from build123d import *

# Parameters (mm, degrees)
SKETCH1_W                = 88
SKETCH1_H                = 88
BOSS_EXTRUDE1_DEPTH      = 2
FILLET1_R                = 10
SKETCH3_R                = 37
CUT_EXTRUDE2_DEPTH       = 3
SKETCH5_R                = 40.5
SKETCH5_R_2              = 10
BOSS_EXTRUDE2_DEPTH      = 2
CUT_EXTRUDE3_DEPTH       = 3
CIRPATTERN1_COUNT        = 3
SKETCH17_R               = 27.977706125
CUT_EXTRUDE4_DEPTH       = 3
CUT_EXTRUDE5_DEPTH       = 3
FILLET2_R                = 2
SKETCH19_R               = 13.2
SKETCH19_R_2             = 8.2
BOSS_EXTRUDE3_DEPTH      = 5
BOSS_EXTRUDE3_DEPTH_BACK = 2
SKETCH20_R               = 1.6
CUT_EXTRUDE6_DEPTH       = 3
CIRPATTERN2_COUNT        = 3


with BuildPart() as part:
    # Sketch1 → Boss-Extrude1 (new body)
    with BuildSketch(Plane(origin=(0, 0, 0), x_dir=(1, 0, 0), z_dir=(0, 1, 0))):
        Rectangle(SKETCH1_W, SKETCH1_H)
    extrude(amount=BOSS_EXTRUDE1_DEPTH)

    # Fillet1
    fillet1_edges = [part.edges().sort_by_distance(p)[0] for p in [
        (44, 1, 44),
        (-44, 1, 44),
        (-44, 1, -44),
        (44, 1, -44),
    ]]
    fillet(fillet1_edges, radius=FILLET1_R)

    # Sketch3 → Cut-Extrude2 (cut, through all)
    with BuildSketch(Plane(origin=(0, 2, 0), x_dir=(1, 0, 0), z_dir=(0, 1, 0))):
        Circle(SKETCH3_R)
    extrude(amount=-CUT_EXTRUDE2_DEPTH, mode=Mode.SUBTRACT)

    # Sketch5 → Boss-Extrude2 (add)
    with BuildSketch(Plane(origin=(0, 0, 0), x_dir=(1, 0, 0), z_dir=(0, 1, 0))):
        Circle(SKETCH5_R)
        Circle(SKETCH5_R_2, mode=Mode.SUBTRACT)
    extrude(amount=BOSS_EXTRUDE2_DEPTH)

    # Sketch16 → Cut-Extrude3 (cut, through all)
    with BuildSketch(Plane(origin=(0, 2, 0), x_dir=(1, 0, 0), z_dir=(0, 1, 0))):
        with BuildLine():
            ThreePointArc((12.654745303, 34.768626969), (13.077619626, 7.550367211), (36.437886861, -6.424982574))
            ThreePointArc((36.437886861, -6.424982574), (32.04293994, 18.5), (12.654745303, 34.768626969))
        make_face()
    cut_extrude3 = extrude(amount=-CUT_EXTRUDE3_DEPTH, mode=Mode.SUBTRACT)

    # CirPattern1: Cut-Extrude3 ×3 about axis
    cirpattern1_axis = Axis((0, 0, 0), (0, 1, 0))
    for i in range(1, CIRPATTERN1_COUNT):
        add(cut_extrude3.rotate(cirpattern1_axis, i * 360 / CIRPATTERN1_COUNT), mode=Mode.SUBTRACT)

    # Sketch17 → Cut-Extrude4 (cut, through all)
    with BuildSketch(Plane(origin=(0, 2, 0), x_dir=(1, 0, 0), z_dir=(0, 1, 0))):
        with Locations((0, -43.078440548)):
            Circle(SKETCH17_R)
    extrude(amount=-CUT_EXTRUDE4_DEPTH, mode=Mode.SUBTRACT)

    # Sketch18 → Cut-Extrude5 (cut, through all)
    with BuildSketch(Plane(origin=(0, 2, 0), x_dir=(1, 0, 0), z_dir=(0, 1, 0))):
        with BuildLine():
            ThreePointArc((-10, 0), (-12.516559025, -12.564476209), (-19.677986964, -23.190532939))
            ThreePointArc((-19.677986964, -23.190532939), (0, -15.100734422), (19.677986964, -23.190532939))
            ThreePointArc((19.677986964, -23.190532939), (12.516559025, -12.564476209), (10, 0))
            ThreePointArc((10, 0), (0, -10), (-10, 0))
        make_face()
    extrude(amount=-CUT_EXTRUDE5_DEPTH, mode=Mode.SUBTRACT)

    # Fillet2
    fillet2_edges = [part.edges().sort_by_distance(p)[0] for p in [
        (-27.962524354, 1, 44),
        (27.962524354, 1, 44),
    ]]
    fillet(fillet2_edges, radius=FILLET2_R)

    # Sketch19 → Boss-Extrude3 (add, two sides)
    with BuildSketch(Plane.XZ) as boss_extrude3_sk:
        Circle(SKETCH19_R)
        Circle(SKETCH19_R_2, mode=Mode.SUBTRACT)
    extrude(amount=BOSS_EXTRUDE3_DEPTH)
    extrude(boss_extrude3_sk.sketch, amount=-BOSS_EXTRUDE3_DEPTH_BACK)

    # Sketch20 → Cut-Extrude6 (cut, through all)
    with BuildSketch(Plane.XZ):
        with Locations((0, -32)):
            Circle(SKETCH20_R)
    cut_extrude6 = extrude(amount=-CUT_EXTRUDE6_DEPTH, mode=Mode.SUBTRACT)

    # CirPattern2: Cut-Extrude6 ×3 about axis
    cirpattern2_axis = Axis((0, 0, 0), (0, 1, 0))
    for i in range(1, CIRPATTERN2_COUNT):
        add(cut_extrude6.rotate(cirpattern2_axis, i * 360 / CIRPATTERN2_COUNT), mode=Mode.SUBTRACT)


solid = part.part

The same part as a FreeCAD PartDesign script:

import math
import FreeCAD as App
import Part
import Sketcher
from FreeCAD import Vector


def edges_at(feature, points):
    """Names of the edges that pass closest to the given points."""
    edges = feature.Shape.Edges
    near = lambda p: min(range(len(edges)), key=lambda i: edges[i].distToShape(Part.Vertex(*p))[0])
    return sorted({f"Edge{near(p) + 1}" for p in points})

doc = App.newDocument("Part")
body = doc.addObject("PartDesign::Body", "Body")

# Sketch on XZ plane
sketch1 = doc.addObject("Sketcher::SketchObject", "Sketch")
body.addObject(sketch1)
sketch1.AttachmentSupport = (doc.XZ_Plane, [""])
sketch1.MapMode = "FlatFace"
sketch1.addGeometry(Part.LineSegment(Vector(-44, -44, 0), Vector(-44, 44, 0)), False)
sketch1.addGeometry(Part.LineSegment(Vector(-44, 44, 0), Vector(44, 44, 0)), False)
sketch1.addGeometry(Part.LineSegment(Vector(44, 44, 0), Vector(44, -44, 0)), False)
sketch1.addGeometry(Part.LineSegment(Vector(44, -44, 0), Vector(-44, -44, 0)), False)
sketch1.addConstraint(Sketcher.Constraint("Coincident", 0, 2, 1, 1))
sketch1.addConstraint(Sketcher.Constraint("Coincident", 1, 2, 2, 1))
sketch1.addConstraint(Sketcher.Constraint("Coincident", 2, 2, 3, 1))
sketch1.addConstraint(Sketcher.Constraint("Coincident", 3, 2, 0, 1))
sketch1.addConstraint(Sketcher.Constraint("Vertical", 0))
sketch1.addConstraint(Sketcher.Constraint("Horizontal", 1))
sketch1.addConstraint(Sketcher.Constraint("Vertical", 2))
sketch1.addConstraint(Sketcher.Constraint("Horizontal", 3))
sketch1.addConstraint(Sketcher.Constraint("Symmetric", 0, 2, 2, 2, -1, 1))
sketch1.addConstraint(Sketcher.Constraint("Equal", 3, 0))
sketch1.addConstraint(Sketcher.Constraint("DistanceX", 1, 1, 1, 2, 88.0))
pad1 = doc.addObject("PartDesign::Pad", "Pad")
body.addObject(pad1)
pad1.Profile = sketch1
pad1.Length = 2
pad1.Reversed = True
doc.recompute()

fillet = doc.addObject("PartDesign::Fillet", "Fillet")
body.addObject(fillet)
fillet.Base = (pad1, edges_at(pad1, [
    (44, 1, 44),
    (-44, 1, 44),
    (-44, 1, -44),
    (44, 1, -44),
]))
fillet.Radius = 10

# Sketch on XZ plane
sketch2 = doc.addObject("Sketcher::SketchObject", "Sketch001")
body.addObject(sketch2)
sketch2.AttachmentSupport = (doc.XZ_Plane, [""])
sketch2.MapMode = "FlatFace"
sketch2.AttachmentOffset = App.Placement(Vector(0, 0, -2), App.Rotation())
sketch2.addGeometry(Part.Circle(Vector(0, 0, 0), Vector(0, 0, 1), 37), False)
sketch2.addConstraint(Sketcher.Constraint("Coincident", 0, 3, -1, 1))
sketch2.addConstraint(Sketcher.Constraint("Diameter", 0, 74.0))
pocket1 = doc.addObject("PartDesign::Pocket", "Pocket")
body.addObject(pocket1)
pocket1.Profile = sketch2
pocket1.Type = "ThroughAll"
pocket1.Reversed = True

# Sketch on XZ plane
sketch3 = doc.addObject("Sketcher::SketchObject", "Sketch002")
body.addObject(sketch3)
sketch3.AttachmentSupport = (doc.XZ_Plane, [""])
sketch3.MapMode = "FlatFace"
sketch3.addGeometry(Part.Circle(Vector(0, 0, 0), Vector(0, 0, 1), 40), False)
sketch3.addGeometry(Part.Circle(Vector(0, 0, 0), Vector(0, 0, 1), 10), False)
sketch3.addConstraint(Sketcher.Constraint("Coincident", 0, 3, -1, 1))
sketch3.addConstraint(Sketcher.Constraint("Coincident", 1, 3, -1, 1))
sketch3.addConstraint(Sketcher.Constraint("Diameter", 0, 81.0))
sketch3.addConstraint(Sketcher.Constraint("Diameter", 1, 20.0))
pad2 = doc.addObject("PartDesign::Pad", "Pad001")
body.addObject(pad2)
pad2.Profile = sketch3
pad2.Length = 2
pad2.Reversed = True

# Sketch on XZ plane
sketch4 = doc.addObject("Sketcher::SketchObject", "Sketch003")
body.addObject(sketch4)
sketch4.AttachmentSupport = (doc.XZ_Plane, [""])
sketch4.MapMode = "FlatFace"
sketch4.AttachmentOffset = App.Placement(Vector(0, 0, -2), App.Rotation())
sketch4.addGeometry(Part.ArcOfCircle(Part.Circle(Vector(37, -22, 0), Vector(0, 0, 1), 28), math.radians(92), math.radians(208)), False)
sketch4.addGeometry(Part.ArcOfCircle(Part.Circle(Vector(0, 0, 0), Vector(0, 0, 1), 37), math.radians(-70), math.radians(10)), False)
sketch4.addConstraint(Sketcher.Constraint("Coincident", 0, 1, 1, 2))
sketch4.addConstraint(Sketcher.Constraint("Coincident", 1, 1, 0, 2))
sketch4.addConstraint(Sketcher.Constraint("Coincident", 1, 3, -1, 1))
sketch4.addConstraint(Sketcher.Constraint("Radius", 1, 37.0))
sketch4.addConstraint(Sketcher.Constraint("Radius", 0, 27.977706))
sketch4.addConstraint(Sketcher.Constraint("DistanceY", 0, 3, -1, 1, 21.53922))
sketch4.addConstraint(Sketcher.Constraint("DistanceX", 1, 1, 0, 3, 24.652279))
pocket2 = doc.addObject("PartDesign::Pocket", "Pocket001")
body.addObject(pocket2)
pocket2.Profile = sketch4
pocket2.Type = "ThroughAll"
pocket2.Reversed = True
doc.recompute()

polarpattern = doc.addObject("PartDesign::PolarPattern", "PolarPattern")
body.addObject(polarpattern)
polarpattern.Originals = [pocket2]
polarpattern.Axis = (doc.Y_Axis, [""])
polarpattern.Angle = 360
polarpattern.Occurrences = 3
body.Tip = polarpattern

# Sketch on XZ plane
sketch5 = doc.addObject("Sketcher::SketchObject", "Sketch004")
body.addObject(sketch5)
sketch5.AttachmentSupport = (doc.XZ_Plane, [""])
sketch5.MapMode = "FlatFace"
sketch5.AttachmentOffset = App.Placement(Vector(0, 0, -2), App.Rotation())
sketch5.addGeometry(Part.Circle(Vector(0, 43, 0), Vector(0, 0, 1), 28), False)
sketch5.addConstraint(Sketcher.Constraint("PointOnObject", 0, 3, -2))
sketch5.addConstraint(Sketcher.Constraint("Diameter", 0, 55.955412))
sketch5.addConstraint(Sketcher.Constraint("DistanceY", -1, 1, 0, 3, 43.078441))
pocket3 = doc.addObject("PartDesign::Pocket", "Pocket002")
body.addObject(pocket3)
pocket3.Profile = sketch5
pocket3.Type = "ThroughAll"
pocket3.Reversed = True

# Sketch on XZ plane
sketch6 = doc.addObject("Sketcher::SketchObject", "Sketch005")
body.addObject(sketch6)
sketch6.AttachmentSupport = (doc.XZ_Plane, [""])
sketch6.MapMode = "FlatFace"
sketch6.AttachmentOffset = App.Placement(Vector(0, 0, -2), App.Rotation())
sketch6.addGeometry(Part.ArcOfCircle(Part.Circle(Vector(-43, 0, 0), Vector(0, 0, 1), 33), math.radians(0), math.radians(45)), False)
sketch6.addGeometry(Part.ArcOfCircle(Part.Circle(Vector(0, 43, 0), Vector(0, 0, 1), 28), math.radians(-135), math.radians(-45)), False)
sketch6.addGeometry(Part.ArcOfCircle(Part.Circle(Vector(43, 0, 0), Vector(0, 0, 1), 33), math.radians(135), math.radians(180)), False)
sketch6.addGeometry(Part.ArcOfCircle(Part.Circle(Vector(0, 0, 0), Vector(0, 0, 1), 10), math.radians(0), math.radians(180)), False)
sketch6.addConstraint(Sketcher.Constraint("Tangent", 0, 2, 1, 1))
sketch6.addConstraint(Sketcher.Constraint("Tangent", 1, 2, 2, 1))
sketch6.addConstraint(Sketcher.Constraint("Tangent", 2, 2, 3, 1))
sketch6.addConstraint(Sketcher.Constraint("Tangent", 3, 2, 0, 1))
sketch6.addConstraint(Sketcher.Constraint("Coincident", 3, 3, -1, 1))
sketch6.addConstraint(Sketcher.Constraint("Equal", 0, 2))
sketch6.addConstraint(Sketcher.Constraint("PointOnObject", 0, 3, -1))
sketch6.addConstraint(Sketcher.Constraint("PointOnObject", 1, 3, -2))
sketch6.addConstraint(Sketcher.Constraint("Radius", 3, 10.0))
sketch6.addConstraint(Sketcher.Constraint("Radius", 0, 32.623739))
sketch6.addConstraint(Sketcher.Constraint("Radius", 1, 27.977706))
pocket4 = doc.addObject("PartDesign::Pocket", "Pocket003")
body.addObject(pocket4)
pocket4.Profile = sketch6
pocket4.Type = "ThroughAll"
pocket4.Reversed = True
doc.recompute()

fillet2 = doc.addObject("PartDesign::Fillet", "Fillet001")
body.addObject(fillet2)
fillet2.Base = (pocket4, edges_at(pocket4, [(-27.963, 1, 44), (27.963, 1, 44)]))
fillet2.Radius = 2

# Sketch on XZ plane
sketch7 = doc.addObject("Sketcher::SketchObject", "Sketch006")
body.addObject(sketch7)
sketch7.AttachmentSupport = (doc.XZ_Plane, [""])
sketch7.MapMode = "FlatFace"
sketch7.addGeometry(Part.Circle(Vector(0, 0, 0), Vector(0, 0, 1), 13), False)
sketch7.addGeometry(Part.Circle(Vector(0, 0, 0), Vector(0, 0, 1), 8), False)
sketch7.addConstraint(Sketcher.Constraint("Coincident", 0, 3, -1, 1))
sketch7.addConstraint(Sketcher.Constraint("Coincident", 1, 3, -1, 1))
sketch7.addConstraint(Sketcher.Constraint("Diameter", 0, 26.4))
sketch7.addConstraint(Sketcher.Constraint("Diameter", 1, 16.4))
pad3 = doc.addObject("PartDesign::Pad", "Pad002")
body.addObject(pad3)
pad3.Profile = sketch7
pad3.Type = "TwoLengths"
pad3.Length = 5
pad3.Length2 = 2

# Sketch on XZ plane
sketch8 = doc.addObject("Sketcher::SketchObject", "Sketch007")
body.addObject(sketch8)
sketch8.AttachmentSupport = (doc.XZ_Plane, [""])
sketch8.MapMode = "FlatFace"
sketch8.addGeometry(Part.Circle(Vector(0, -32, 0), Vector(0, 0, 1), 1.6), False)
sketch8.addConstraint(Sketcher.Constraint("PointOnObject", 0, 3, -2))
sketch8.addConstraint(Sketcher.Constraint("Diameter", 0, 3.2))
sketch8.addConstraint(Sketcher.Constraint("DistanceY", 0, 3, -1, 1, 32.0))
pocket5 = doc.addObject("PartDesign::Pocket", "Pocket004")
body.addObject(pocket5)
pocket5.Profile = sketch8
pocket5.Type = "ThroughAll"
doc.recompute()

polarpattern2 = doc.addObject("PartDesign::PolarPattern", "PolarPattern001")
body.addObject(polarpattern2)
polarpattern2.Originals = [pocket5]
polarpattern2.Axis = (doc.Y_Axis, [""])
polarpattern2.Angle = 360
polarpattern2.Occurrences = 3
body.Tip = polarpattern2

doc.recompute()
